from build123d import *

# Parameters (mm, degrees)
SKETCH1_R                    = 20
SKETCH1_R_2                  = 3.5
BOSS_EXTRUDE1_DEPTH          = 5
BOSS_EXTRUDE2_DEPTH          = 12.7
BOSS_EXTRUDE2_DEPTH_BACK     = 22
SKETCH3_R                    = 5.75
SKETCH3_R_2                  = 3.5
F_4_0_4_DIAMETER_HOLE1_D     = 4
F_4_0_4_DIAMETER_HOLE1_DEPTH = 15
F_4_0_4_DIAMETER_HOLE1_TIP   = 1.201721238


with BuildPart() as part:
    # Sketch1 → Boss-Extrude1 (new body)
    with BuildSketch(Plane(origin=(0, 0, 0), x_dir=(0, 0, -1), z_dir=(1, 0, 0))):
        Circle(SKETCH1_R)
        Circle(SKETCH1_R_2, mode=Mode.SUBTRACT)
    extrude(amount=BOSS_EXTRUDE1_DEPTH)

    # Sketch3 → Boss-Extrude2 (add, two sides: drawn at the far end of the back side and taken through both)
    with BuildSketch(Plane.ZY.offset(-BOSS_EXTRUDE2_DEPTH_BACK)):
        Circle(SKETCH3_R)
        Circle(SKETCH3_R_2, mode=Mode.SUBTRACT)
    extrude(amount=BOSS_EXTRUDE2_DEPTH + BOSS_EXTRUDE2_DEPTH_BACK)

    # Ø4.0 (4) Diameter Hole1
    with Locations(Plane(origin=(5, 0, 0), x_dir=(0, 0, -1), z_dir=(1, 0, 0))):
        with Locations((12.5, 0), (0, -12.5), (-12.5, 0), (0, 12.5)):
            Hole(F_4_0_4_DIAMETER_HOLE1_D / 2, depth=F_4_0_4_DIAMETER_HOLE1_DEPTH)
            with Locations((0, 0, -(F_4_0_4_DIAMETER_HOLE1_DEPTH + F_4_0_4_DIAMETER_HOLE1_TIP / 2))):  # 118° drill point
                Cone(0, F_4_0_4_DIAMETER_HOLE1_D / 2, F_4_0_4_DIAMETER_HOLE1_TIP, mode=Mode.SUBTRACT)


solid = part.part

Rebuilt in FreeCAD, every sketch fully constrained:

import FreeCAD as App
import Part
import Sketcher
Q = App.Units.Quantity

doc = App.newDocument("Part")
params = doc.addObject("Spreadsheet::Sheet", "Params")
for row, (alias, value) in enumerate([
    ("sketch1_diameter", "40 mm"),
    ("sketch1_diameter2", "7 mm"),
    ("pad1_length", "5 mm"),
    ("sketch2_diameter", "7 mm"),
    ("sketch2_diameter2", "11.5 mm"),
    ("pad2_length", "12.7 mm"),
    ("pad2_length2", "22 mm"),
    ("sketch3_diameter", "4 mm"),
    ("hole_diameter", "4 mm"),
    ("hole_depth", "15 mm"),
], start=1):
    params.set(f"A{row}", alias)
    params.set(f"B{row}", "=" + value)
    params.setAlias(f"B{row}", alias)

body = doc.addObject("PartDesign::Body", "Body")

sketch1 = body.newObject("Sketcher::SketchObject", "Sketch")
sketch1.AttachmentSupport = (doc.getObject("YZ_Plane"), [""])
sketch1.MapMode = "FlatFace"
sketch1.addGeometry([
    Part.Circle(App.Vector(0, 0, 0), App.Vector(0, 0, 1), 20),
    Part.Circle(App.Vector(0, 0, 0), App.Vector(0, 0, 1), 3.5),
], False)
sketch1.addConstraint([
    Sketcher.Constraint("Coincident", 0, 3, -1, 1),
    Sketcher.Constraint("Coincident", 1, 3, -1, 1),
    Sketcher.Constraint("Diameter", 0, Q("40 mm")),
    Sketcher.Constraint("Diameter", 1, Q("7 mm")),
])
sketch1.setExpression("Constraints[2]", "Params.sketch1_diameter")
sketch1.setExpression("Constraints[3]", "Params.sketch1_diameter2")
pad1 = body.newObject("PartDesign::Pad", "Pad")
pad1.Profile = sketch1
pad1.setExpression("Length", "Params.pad1_length")

sketch2 = body.newObject("Sketcher::SketchObject", "Sketch001")
sketch2.AttachmentSupport = (doc.getObject("YZ_Plane"), [""])
sketch2.MapMode = "FlatFace"
sketch2.addGeometry([
    Part.Circle(App.Vector(0, 0, 0), App.Vector(0, 0, 1), 5.75),
    Part.Circle(App.Vector(0, 0, 0), App.Vector(0, 0, 1), 3.5),
], False)
sketch2.addConstraint([
    Sketcher.Constraint("Coincident", 0, 3, -1, 1),
    Sketcher.Constraint("Coincident", 1, 3, -1, 1),
    Sketcher.Constraint("Diameter", 1, Q("7 mm")),
    Sketcher.Constraint("Diameter", 0, Q("11.5 mm")),
])
sketch2.setExpression("Constraints[2]", "Params.sketch2_diameter")
sketch2.setExpression("Constraints[3]", "Params.sketch2_diameter2")
pad2 = body.newObject("PartDesign::Pad", "Pad001")
pad2.Profile = sketch2
pad2.Type = "TwoLengths"
pad2.setExpression("Length", "Params.pad2_length")
pad2.setExpression("Length2", "Params.pad2_length2")
pad2.Reversed = True

sketch3 = body.newObject("Sketcher::SketchObject", "Sketch002")
sketch3.AttachmentSupport = (doc.getObject("YZ_Plane"), [""])
sketch3.MapMode = "FlatFace"
sketch3.AttachmentOffset = App.Placement(App.Vector(0, 0, 5), App.Rotation())
sketch3.addGeometry([
    Part.Circle(App.Vector(0, -12.5, 0), App.Vector(0, 0, 1), 2),
    Part.Circle(App.Vector(-12.5, 0, 0), App.Vector(0, 0, 1), 2),
    Part.Circle(App.Vector(0, 12.5, 0), App.Vector(0, 0, 1), 2),
    Part.Circle(App.Vector(12.5, 0, 0), App.Vector(0, 0, 1), 2),
], False)
sketch3.addConstraint([
    Sketcher.Constraint("Equal", 0, 1),
    Sketcher.Constraint("Equal", 1, 2),
    Sketcher.Constraint("Equal", 2, 3),
    Sketcher.Constraint("Symmetric", 0, 3, 2, 3, -1, 1),
    Sketcher.Constraint("Symmetric", 1, 3, 3, 3, -1, 1),
    Sketcher.Constraint("PointOnObject", 0, 3, -2),
    Sketcher.Constraint("PointOnObject", 1, 3, -1),
    Sketcher.Constraint("Diameter", 0, Q("4 mm")),
    Sketcher.Constraint("DistanceY", 0, 3, 2, 3, Q("25 mm")),
    Sketcher.Constraint("DistanceX", 1, 3, 3, 3, Q("25 mm")),
])
sketch3.setExpression("Constraints[7]", "Params.sketch3_diameter")
doc.recompute()
hole = body.newObject("PartDesign::Hole", "Hole")
hole.Profile = sketch3
hole.ThreadType = "None"
hole.setExpression("Diameter", "Params.hole_diameter")
hole.DepthType = "Dimension"
hole.setExpression("Depth", "Params.hole_depth")
hole.DrillPoint = "Angled"
hole.DrillPointAngle = 118

doc.recompute()
